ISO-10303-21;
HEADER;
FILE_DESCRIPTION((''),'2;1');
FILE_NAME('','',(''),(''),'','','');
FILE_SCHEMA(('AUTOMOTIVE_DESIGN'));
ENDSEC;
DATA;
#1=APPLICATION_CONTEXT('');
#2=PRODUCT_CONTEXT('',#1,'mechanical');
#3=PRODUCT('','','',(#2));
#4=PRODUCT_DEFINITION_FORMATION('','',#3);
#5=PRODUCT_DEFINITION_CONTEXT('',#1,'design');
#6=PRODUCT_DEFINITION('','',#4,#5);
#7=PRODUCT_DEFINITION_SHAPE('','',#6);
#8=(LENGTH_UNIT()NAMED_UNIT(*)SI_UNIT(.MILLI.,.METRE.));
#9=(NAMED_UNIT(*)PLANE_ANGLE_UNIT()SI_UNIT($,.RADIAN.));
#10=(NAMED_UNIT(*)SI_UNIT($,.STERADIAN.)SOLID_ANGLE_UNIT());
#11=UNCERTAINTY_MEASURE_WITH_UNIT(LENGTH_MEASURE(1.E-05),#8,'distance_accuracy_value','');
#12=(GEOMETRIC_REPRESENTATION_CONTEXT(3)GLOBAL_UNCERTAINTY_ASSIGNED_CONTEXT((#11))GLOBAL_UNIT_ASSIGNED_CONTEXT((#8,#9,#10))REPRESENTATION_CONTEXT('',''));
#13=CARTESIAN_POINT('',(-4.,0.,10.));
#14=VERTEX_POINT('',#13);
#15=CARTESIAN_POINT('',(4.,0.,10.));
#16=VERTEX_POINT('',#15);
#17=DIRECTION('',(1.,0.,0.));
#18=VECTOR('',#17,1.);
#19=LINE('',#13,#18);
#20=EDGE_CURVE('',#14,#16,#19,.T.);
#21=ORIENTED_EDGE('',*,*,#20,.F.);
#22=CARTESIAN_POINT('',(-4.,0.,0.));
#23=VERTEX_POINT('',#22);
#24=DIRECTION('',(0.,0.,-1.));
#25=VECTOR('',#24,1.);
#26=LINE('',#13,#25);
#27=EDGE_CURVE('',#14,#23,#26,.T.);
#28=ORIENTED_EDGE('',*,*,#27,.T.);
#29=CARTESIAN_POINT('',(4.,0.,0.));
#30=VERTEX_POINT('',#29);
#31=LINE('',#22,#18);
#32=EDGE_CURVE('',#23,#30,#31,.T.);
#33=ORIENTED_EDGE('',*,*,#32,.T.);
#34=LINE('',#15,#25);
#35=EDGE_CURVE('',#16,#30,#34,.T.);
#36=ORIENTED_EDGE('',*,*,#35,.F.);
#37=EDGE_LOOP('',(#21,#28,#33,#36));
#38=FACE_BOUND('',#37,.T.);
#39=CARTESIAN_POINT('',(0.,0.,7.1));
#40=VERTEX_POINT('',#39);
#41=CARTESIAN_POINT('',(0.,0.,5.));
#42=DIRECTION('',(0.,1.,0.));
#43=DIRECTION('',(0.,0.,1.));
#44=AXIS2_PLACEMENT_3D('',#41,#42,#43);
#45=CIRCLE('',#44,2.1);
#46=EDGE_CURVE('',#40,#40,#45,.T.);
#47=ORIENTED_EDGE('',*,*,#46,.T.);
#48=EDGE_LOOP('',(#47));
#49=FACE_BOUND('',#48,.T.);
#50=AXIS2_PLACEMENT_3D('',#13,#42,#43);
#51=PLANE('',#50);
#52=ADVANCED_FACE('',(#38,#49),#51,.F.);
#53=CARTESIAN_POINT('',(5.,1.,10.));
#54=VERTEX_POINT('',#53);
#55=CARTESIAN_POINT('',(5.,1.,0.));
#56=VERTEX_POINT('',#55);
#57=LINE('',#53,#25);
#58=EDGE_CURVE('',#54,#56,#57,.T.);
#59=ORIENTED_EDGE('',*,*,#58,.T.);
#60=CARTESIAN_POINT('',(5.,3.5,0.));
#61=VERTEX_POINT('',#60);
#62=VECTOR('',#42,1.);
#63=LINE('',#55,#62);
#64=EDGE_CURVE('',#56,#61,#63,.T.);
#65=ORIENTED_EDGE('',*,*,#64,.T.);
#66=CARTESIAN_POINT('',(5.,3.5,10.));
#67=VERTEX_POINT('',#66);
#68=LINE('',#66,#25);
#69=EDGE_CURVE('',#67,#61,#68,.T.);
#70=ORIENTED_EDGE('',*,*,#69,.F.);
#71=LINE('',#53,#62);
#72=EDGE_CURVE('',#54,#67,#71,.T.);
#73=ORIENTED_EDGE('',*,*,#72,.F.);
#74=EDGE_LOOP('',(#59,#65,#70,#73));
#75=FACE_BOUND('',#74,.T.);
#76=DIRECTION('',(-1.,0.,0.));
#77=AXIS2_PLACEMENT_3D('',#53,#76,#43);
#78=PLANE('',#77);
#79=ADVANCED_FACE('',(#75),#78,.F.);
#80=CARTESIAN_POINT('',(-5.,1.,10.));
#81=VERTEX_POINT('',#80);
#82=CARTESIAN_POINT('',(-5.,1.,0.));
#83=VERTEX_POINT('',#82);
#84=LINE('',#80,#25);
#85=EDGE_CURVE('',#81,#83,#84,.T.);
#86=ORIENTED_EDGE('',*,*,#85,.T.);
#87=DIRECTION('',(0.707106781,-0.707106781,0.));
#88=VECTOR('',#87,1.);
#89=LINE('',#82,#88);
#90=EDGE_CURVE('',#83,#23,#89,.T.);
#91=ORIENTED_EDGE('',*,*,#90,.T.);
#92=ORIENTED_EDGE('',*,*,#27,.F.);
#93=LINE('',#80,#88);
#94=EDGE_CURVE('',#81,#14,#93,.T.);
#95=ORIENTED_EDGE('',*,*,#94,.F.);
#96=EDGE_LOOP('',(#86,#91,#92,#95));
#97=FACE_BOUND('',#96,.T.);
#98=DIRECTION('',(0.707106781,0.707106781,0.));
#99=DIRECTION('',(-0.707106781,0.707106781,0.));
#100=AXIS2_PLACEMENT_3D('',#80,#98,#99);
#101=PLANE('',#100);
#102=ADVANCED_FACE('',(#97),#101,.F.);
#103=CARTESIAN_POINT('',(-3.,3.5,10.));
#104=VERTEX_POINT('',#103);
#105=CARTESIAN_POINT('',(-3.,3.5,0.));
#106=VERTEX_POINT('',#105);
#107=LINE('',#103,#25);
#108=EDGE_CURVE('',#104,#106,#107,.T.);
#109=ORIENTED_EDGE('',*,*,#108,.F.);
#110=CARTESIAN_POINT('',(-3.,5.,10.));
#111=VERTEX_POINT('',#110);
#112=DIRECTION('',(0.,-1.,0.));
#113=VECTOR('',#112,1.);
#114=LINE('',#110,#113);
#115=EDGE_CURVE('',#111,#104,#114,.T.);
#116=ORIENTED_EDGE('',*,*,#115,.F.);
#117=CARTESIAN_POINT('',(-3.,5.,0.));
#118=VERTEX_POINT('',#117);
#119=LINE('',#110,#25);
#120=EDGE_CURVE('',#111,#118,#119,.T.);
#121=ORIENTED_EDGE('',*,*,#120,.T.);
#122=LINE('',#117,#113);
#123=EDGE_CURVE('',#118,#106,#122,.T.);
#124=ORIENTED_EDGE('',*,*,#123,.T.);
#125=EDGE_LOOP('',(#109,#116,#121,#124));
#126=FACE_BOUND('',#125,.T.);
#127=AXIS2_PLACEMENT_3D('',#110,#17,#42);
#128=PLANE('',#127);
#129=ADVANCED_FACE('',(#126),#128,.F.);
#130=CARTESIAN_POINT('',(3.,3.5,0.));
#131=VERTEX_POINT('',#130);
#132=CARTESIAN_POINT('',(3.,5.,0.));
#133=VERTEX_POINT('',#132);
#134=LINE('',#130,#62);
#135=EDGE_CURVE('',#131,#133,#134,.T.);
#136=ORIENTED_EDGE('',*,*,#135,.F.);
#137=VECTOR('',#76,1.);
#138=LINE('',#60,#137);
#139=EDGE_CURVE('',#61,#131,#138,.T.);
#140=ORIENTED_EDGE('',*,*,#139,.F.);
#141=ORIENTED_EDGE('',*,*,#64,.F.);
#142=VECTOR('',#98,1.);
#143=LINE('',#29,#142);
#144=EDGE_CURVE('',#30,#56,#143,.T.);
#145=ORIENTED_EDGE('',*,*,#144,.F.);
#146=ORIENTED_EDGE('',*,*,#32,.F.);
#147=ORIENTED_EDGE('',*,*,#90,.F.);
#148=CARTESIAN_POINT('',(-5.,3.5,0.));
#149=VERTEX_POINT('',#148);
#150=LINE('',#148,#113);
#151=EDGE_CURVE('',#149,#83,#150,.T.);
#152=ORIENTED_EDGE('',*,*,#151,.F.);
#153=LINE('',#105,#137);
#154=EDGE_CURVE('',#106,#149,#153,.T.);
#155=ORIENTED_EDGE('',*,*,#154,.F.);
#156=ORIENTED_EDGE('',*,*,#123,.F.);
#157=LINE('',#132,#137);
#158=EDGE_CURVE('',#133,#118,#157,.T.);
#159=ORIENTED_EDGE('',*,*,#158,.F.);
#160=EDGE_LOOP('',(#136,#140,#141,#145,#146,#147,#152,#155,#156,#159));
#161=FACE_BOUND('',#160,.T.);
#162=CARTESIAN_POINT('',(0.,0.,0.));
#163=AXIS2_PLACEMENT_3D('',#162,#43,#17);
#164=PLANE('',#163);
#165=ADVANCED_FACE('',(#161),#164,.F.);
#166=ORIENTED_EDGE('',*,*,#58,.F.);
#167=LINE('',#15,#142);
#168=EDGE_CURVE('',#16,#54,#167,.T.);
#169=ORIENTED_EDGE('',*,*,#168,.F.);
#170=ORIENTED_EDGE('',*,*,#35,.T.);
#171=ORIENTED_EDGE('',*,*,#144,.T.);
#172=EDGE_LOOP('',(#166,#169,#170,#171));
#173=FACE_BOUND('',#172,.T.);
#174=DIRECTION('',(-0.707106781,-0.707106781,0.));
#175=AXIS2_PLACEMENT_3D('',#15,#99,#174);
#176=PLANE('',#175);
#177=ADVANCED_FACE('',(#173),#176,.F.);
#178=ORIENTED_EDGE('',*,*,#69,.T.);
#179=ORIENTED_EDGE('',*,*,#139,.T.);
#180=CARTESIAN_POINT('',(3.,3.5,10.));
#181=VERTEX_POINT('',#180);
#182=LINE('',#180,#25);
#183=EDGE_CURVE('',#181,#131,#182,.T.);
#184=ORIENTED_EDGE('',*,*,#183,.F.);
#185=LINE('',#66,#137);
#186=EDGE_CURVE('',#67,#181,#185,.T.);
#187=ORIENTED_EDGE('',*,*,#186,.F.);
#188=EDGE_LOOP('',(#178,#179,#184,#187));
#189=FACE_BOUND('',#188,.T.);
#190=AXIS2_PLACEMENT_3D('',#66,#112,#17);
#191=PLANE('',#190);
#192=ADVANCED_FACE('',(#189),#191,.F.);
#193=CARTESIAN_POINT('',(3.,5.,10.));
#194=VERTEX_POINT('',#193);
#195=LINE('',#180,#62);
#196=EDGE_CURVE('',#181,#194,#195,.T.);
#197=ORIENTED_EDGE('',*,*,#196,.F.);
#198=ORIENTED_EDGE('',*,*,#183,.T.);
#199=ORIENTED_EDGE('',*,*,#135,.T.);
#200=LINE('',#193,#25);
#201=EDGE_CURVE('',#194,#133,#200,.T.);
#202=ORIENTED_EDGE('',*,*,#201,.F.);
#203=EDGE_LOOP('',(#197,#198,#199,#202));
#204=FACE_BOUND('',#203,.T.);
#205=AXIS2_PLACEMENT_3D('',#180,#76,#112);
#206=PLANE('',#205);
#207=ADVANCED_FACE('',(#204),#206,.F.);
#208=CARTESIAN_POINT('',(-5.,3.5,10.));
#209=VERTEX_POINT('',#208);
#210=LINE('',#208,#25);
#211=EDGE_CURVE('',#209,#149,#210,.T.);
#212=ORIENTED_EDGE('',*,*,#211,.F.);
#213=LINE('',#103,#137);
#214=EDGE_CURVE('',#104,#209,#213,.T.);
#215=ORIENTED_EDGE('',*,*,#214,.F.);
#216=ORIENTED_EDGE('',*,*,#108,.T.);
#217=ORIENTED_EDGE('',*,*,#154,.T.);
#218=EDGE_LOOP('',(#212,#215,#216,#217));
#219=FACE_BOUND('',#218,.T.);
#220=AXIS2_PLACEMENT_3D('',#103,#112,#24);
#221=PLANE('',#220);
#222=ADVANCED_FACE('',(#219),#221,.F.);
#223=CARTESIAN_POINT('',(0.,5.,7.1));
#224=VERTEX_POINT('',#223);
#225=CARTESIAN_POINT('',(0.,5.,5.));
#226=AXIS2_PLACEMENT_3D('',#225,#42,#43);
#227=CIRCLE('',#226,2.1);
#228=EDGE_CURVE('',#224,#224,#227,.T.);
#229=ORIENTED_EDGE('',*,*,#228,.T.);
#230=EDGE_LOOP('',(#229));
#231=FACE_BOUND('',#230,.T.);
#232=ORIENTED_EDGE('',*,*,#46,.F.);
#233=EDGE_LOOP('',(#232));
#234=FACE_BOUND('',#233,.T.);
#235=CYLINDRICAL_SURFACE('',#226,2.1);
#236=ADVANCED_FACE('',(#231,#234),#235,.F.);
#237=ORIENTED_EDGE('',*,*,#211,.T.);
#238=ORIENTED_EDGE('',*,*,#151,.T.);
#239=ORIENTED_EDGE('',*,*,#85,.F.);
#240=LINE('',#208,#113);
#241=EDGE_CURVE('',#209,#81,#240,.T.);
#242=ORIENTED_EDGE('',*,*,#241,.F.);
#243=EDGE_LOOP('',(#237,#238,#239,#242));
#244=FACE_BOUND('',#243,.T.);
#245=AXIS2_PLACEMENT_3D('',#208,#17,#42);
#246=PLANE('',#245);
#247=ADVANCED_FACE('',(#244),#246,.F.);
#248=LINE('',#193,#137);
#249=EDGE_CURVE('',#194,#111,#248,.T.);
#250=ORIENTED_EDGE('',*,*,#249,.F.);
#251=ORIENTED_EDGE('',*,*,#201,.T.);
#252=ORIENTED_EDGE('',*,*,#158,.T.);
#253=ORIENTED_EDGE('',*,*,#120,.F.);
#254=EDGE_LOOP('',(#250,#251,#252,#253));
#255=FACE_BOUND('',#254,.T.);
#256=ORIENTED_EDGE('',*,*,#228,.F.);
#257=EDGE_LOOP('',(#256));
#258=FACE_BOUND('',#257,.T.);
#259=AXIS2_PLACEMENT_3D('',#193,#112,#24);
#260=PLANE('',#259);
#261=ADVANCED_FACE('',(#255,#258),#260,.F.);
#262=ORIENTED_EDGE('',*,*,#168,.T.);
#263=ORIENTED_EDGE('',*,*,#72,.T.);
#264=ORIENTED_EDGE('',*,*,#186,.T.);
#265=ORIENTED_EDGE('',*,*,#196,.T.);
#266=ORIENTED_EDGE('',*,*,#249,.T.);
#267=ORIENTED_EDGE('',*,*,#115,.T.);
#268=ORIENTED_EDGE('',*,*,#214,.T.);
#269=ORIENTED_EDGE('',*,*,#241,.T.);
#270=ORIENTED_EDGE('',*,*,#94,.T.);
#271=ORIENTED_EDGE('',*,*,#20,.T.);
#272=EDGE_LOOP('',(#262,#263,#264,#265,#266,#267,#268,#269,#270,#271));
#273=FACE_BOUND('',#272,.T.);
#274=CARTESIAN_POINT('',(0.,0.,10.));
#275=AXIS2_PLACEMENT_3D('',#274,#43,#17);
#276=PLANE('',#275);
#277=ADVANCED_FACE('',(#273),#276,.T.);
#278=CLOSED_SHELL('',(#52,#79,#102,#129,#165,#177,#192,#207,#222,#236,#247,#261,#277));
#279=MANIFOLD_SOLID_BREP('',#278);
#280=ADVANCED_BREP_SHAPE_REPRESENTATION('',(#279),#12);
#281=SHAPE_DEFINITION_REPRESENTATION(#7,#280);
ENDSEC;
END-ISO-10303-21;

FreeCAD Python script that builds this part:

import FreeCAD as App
import Part
import Sketcher


def add_polygon(sketch, points):
    """Adds a closed chain of lines whose ends are joined by coincident constraints."""
    first, n = sketch.GeometryCount, len(points)
    for a, b in zip(points, points[1:] + points[:1]):
        sketch.addGeometry(Part.LineSegment(App.Vector(*a, 0), App.Vector(*b, 0)), False)
    for i in range(n):
        sketch.addConstraint(Sketcher.Constraint("Coincident", first + i, 2, first + (i + 1) % n, 1))

doc = App.newDocument("Part")
body = doc.addObject("PartDesign::Body", "Body")

# Sketch on XY plane
sketch1 = doc.addObject("Sketcher::SketchObject", "Sketch")
body.addObject(sketch1)
sketch1.AttachmentSupport = (doc.XY_Plane, [""])
sketch1.MapMode = "FlatFace"
add_polygon(sketch1, [(-4, 0), (4, 0), (5, 1), (5, 3.5), (3, 3.5), (3, 5), (-3, 5), (-3, 3.5), (-5, 3.5), (-5, 1)])  # lines 0-9
sketch1.addConstraint(Sketcher.Constraint("Horizontal", 0))
sketch1.addConstraint(Sketcher.Constraint("Vertical", 2))
sketch1.addConstraint(Sketcher.Constraint("Horizontal", 3))
sketch1.addConstraint(Sketcher.Constraint("Vertical", 4))
sketch1.addConstraint(Sketcher.Constraint("Horizontal", 5))
sketch1.addConstraint(Sketcher.Constraint("Vertical", 6))
sketch1.addConstraint(Sketcher.Constraint("Horizontal", 7))
sketch1.addConstraint(Sketcher.Constraint("Vertical", 8))
sketch1.addConstraint(Sketcher.Constraint("Symmetric", 0, 2, 9, 2, -1, 1))
sketch1.addConstraint(Sketcher.Constraint("Symmetric", 3, 2, 6, 2, -2))
sketch1.addConstraint(Sketcher.Constraint("Symmetric", 1, 2, 8, 2, -2))
sketch1.addConstraint(Sketcher.Constraint("Perpendicular", 1, 9))
sketch1.addConstraint(Sketcher.Constraint("DistanceX", 0, 1, 0, 2, 8.0))
sketch1.addConstraint(Sketcher.Constraint("DistanceX", 3, 2, 3, 1, 2.0))
sketch1.addConstraint(Sketcher.Constraint("DistanceX", 5, 2, 5, 1, 6.0))
sketch1.addConstraint(Sketcher.Constraint("DistanceY", 2, 1, 2, 2, 2.5))
sketch1.addConstraint(Sketcher.Constraint("DistanceY", 4, 1, 4, 2, 1.5))
pad1 = doc.addObject("PartDesign::Pad", "Pad")
body.addObject(pad1)
pad1.Profile = sketch1
pad1.Length = 10

# Sketch on XZ plane
sketch2 = doc.addObject("Sketcher::SketchObject", "Sketch001")
body.addObject(sketch2)
sketch2.AttachmentSupport = (doc.XZ_Plane, [""])
sketch2.MapMode = "FlatFace"
sketch2.AttachmentOffset = App.Placement(App.Vector(0, 0, -5), App.Rotation())
sketch2.addGeometry(Part.Circle(App.Vector(0, 5, 0), App.Vector(0, 0, 1), 2.1), False)
sketch2.addConstraint(Sketcher.Constraint("PointOnObject", 0, 3, -2))
sketch2.addConstraint(Sketcher.Constraint("Diameter", 0, 4.2))
sketch2.addConstraint(Sketcher.Constraint("DistanceY", -1, 1, 0, 3, 5.0))
doc.recompute()
hole = doc.addObject("PartDesign::Hole", "Hole")
body.addObject(hole)
hole.Profile = sketch2
hole.ThreadType = "None"
hole.Diameter = 4.2
hole.DepthType = "ThroughAll"
hole.Reversed = True

doc.recompute()
